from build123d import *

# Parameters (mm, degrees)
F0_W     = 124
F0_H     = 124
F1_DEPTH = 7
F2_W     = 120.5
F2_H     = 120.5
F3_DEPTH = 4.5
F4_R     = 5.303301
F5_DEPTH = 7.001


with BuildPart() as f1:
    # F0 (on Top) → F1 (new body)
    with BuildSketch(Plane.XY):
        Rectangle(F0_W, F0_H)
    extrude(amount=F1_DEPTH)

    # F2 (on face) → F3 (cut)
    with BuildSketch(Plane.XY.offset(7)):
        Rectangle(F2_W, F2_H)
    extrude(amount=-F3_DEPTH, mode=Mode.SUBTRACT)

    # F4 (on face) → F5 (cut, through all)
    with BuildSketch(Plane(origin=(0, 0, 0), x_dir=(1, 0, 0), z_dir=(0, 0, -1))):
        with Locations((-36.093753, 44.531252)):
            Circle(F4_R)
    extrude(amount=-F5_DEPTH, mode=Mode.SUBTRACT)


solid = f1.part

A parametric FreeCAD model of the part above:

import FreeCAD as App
import Part
import Sketcher
from FreeCAD import Vector
Q = App.Units.Quantity


def add_polygon(sketch, points):
    """Adds a closed chain of lines whose ends are joined by coincident constraints."""
    first, n = sketch.GeometryCount, len(points)
    for a, b in zip(points, points[1:] + points[:1]):
        sketch.addGeometry(Part.LineSegment(App.Vector(*a, 0), App.Vector(*b, 0)), False)
    for i in range(n):
        sketch.addConstraint(Sketcher.Constraint("Coincident", first + i, 2, first + (i + 1) % n, 1))

doc = App.newDocument("Part")
body = doc.addObject("PartDesign::Body", "Body")

# Sketch on XY plane
sketch1 = body.newObject("Sketcher::SketchObject", "Sketch")
sketch1.AttachmentSupport = (doc.getObject("XY_Plane"), [""])
sketch1.MapMode = "FlatFace"
add_polygon(sketch1, [(-62, 62), (-62, -62), (62, -62), (62, 62)])  # lines 0-3
sketch1.addConstraint([
    Sketcher.Constraint("Vertical", 0),
    Sketcher.Constraint("Horizontal", 1),
    Sketcher.Constraint("Vertical", 2),
    Sketcher.Constraint("Horizontal", 3),
    Sketcher.Constraint("Symmetric", 0, 2, 2, 2, -1, 1),
    Sketcher.Constraint("Equal", 3, 0),
    Sketcher.Constraint("DistanceX", 1, 1, 1, 2, Q("124 mm")),
])
pad1 = body.newObject("PartDesign::Pad", "Pad")
pad1.Profile = sketch1
pad1.Length = 7

# Sketch on XY plane
sketch2 = body.newObject("Sketcher::SketchObject", "Sketch001")
sketch2.AttachmentSupport = (doc.getObject("XY_Plane"), [""])
sketch2.MapMode = "FlatFace"
sketch2.AttachmentOffset = App.Placement(Vector(0, 0, 7), App.Rotation())
add_polygon(sketch2, [(-60.25, 60.25), (-60.25, -60.25), (60.25, -60.25), (60.25, 60.25)])  # lines 0-3
sketch2.addConstraint([
    Sketcher.Constraint("Vertical", 0),
    Sketcher.Constraint("Horizontal", 1),
    Sketcher.Constraint("Vertical", 2),
    Sketcher.Constraint("Horizontal", 3),
    Sketcher.Constraint("Symmetric", 0, 2, 2, 2, -1, 1),
    Sketcher.Constraint("Equal", 3, 0),
    Sketcher.Constraint("DistanceX", 1, 1, 1, 2, Q("120.5 mm")),
])
pocket1 = body.newObject("PartDesign::Pocket", "Pocket")
pocket1.Profile = sketch2
pocket1.Length = 4.5

# Sketch on XY plane
sketch3 = body.newObject("Sketcher::SketchObject", "Sketch002")
sketch3.AttachmentSupport = (doc.getObject("XY_Plane"), [""])
sketch3.MapMode = "FlatFace"
sketch3.addGeometry(Part.Circle(Vector(-36.093753, -44.531252, 0), Vector(0, 0, 1), 5.303301), False)
sketch3.addConstraint([
    Sketcher.Constraint("Diameter", 0, Q("10.606602 mm")),
    Sketcher.Constraint("DistanceX", 0, 3, -1, 1, Q("36.093753 mm")),
    Sketcher.Constraint("DistanceY", 0, 3, -1, 1, Q("44.531252 mm")),
])
pocket2 = body.newObject("PartDesign::Pocket", "Pocket001")
pocket2.Profile = sketch3
pocket2.Type = "ThroughAll"
pocket2.Reversed = True

doc.recompute()
